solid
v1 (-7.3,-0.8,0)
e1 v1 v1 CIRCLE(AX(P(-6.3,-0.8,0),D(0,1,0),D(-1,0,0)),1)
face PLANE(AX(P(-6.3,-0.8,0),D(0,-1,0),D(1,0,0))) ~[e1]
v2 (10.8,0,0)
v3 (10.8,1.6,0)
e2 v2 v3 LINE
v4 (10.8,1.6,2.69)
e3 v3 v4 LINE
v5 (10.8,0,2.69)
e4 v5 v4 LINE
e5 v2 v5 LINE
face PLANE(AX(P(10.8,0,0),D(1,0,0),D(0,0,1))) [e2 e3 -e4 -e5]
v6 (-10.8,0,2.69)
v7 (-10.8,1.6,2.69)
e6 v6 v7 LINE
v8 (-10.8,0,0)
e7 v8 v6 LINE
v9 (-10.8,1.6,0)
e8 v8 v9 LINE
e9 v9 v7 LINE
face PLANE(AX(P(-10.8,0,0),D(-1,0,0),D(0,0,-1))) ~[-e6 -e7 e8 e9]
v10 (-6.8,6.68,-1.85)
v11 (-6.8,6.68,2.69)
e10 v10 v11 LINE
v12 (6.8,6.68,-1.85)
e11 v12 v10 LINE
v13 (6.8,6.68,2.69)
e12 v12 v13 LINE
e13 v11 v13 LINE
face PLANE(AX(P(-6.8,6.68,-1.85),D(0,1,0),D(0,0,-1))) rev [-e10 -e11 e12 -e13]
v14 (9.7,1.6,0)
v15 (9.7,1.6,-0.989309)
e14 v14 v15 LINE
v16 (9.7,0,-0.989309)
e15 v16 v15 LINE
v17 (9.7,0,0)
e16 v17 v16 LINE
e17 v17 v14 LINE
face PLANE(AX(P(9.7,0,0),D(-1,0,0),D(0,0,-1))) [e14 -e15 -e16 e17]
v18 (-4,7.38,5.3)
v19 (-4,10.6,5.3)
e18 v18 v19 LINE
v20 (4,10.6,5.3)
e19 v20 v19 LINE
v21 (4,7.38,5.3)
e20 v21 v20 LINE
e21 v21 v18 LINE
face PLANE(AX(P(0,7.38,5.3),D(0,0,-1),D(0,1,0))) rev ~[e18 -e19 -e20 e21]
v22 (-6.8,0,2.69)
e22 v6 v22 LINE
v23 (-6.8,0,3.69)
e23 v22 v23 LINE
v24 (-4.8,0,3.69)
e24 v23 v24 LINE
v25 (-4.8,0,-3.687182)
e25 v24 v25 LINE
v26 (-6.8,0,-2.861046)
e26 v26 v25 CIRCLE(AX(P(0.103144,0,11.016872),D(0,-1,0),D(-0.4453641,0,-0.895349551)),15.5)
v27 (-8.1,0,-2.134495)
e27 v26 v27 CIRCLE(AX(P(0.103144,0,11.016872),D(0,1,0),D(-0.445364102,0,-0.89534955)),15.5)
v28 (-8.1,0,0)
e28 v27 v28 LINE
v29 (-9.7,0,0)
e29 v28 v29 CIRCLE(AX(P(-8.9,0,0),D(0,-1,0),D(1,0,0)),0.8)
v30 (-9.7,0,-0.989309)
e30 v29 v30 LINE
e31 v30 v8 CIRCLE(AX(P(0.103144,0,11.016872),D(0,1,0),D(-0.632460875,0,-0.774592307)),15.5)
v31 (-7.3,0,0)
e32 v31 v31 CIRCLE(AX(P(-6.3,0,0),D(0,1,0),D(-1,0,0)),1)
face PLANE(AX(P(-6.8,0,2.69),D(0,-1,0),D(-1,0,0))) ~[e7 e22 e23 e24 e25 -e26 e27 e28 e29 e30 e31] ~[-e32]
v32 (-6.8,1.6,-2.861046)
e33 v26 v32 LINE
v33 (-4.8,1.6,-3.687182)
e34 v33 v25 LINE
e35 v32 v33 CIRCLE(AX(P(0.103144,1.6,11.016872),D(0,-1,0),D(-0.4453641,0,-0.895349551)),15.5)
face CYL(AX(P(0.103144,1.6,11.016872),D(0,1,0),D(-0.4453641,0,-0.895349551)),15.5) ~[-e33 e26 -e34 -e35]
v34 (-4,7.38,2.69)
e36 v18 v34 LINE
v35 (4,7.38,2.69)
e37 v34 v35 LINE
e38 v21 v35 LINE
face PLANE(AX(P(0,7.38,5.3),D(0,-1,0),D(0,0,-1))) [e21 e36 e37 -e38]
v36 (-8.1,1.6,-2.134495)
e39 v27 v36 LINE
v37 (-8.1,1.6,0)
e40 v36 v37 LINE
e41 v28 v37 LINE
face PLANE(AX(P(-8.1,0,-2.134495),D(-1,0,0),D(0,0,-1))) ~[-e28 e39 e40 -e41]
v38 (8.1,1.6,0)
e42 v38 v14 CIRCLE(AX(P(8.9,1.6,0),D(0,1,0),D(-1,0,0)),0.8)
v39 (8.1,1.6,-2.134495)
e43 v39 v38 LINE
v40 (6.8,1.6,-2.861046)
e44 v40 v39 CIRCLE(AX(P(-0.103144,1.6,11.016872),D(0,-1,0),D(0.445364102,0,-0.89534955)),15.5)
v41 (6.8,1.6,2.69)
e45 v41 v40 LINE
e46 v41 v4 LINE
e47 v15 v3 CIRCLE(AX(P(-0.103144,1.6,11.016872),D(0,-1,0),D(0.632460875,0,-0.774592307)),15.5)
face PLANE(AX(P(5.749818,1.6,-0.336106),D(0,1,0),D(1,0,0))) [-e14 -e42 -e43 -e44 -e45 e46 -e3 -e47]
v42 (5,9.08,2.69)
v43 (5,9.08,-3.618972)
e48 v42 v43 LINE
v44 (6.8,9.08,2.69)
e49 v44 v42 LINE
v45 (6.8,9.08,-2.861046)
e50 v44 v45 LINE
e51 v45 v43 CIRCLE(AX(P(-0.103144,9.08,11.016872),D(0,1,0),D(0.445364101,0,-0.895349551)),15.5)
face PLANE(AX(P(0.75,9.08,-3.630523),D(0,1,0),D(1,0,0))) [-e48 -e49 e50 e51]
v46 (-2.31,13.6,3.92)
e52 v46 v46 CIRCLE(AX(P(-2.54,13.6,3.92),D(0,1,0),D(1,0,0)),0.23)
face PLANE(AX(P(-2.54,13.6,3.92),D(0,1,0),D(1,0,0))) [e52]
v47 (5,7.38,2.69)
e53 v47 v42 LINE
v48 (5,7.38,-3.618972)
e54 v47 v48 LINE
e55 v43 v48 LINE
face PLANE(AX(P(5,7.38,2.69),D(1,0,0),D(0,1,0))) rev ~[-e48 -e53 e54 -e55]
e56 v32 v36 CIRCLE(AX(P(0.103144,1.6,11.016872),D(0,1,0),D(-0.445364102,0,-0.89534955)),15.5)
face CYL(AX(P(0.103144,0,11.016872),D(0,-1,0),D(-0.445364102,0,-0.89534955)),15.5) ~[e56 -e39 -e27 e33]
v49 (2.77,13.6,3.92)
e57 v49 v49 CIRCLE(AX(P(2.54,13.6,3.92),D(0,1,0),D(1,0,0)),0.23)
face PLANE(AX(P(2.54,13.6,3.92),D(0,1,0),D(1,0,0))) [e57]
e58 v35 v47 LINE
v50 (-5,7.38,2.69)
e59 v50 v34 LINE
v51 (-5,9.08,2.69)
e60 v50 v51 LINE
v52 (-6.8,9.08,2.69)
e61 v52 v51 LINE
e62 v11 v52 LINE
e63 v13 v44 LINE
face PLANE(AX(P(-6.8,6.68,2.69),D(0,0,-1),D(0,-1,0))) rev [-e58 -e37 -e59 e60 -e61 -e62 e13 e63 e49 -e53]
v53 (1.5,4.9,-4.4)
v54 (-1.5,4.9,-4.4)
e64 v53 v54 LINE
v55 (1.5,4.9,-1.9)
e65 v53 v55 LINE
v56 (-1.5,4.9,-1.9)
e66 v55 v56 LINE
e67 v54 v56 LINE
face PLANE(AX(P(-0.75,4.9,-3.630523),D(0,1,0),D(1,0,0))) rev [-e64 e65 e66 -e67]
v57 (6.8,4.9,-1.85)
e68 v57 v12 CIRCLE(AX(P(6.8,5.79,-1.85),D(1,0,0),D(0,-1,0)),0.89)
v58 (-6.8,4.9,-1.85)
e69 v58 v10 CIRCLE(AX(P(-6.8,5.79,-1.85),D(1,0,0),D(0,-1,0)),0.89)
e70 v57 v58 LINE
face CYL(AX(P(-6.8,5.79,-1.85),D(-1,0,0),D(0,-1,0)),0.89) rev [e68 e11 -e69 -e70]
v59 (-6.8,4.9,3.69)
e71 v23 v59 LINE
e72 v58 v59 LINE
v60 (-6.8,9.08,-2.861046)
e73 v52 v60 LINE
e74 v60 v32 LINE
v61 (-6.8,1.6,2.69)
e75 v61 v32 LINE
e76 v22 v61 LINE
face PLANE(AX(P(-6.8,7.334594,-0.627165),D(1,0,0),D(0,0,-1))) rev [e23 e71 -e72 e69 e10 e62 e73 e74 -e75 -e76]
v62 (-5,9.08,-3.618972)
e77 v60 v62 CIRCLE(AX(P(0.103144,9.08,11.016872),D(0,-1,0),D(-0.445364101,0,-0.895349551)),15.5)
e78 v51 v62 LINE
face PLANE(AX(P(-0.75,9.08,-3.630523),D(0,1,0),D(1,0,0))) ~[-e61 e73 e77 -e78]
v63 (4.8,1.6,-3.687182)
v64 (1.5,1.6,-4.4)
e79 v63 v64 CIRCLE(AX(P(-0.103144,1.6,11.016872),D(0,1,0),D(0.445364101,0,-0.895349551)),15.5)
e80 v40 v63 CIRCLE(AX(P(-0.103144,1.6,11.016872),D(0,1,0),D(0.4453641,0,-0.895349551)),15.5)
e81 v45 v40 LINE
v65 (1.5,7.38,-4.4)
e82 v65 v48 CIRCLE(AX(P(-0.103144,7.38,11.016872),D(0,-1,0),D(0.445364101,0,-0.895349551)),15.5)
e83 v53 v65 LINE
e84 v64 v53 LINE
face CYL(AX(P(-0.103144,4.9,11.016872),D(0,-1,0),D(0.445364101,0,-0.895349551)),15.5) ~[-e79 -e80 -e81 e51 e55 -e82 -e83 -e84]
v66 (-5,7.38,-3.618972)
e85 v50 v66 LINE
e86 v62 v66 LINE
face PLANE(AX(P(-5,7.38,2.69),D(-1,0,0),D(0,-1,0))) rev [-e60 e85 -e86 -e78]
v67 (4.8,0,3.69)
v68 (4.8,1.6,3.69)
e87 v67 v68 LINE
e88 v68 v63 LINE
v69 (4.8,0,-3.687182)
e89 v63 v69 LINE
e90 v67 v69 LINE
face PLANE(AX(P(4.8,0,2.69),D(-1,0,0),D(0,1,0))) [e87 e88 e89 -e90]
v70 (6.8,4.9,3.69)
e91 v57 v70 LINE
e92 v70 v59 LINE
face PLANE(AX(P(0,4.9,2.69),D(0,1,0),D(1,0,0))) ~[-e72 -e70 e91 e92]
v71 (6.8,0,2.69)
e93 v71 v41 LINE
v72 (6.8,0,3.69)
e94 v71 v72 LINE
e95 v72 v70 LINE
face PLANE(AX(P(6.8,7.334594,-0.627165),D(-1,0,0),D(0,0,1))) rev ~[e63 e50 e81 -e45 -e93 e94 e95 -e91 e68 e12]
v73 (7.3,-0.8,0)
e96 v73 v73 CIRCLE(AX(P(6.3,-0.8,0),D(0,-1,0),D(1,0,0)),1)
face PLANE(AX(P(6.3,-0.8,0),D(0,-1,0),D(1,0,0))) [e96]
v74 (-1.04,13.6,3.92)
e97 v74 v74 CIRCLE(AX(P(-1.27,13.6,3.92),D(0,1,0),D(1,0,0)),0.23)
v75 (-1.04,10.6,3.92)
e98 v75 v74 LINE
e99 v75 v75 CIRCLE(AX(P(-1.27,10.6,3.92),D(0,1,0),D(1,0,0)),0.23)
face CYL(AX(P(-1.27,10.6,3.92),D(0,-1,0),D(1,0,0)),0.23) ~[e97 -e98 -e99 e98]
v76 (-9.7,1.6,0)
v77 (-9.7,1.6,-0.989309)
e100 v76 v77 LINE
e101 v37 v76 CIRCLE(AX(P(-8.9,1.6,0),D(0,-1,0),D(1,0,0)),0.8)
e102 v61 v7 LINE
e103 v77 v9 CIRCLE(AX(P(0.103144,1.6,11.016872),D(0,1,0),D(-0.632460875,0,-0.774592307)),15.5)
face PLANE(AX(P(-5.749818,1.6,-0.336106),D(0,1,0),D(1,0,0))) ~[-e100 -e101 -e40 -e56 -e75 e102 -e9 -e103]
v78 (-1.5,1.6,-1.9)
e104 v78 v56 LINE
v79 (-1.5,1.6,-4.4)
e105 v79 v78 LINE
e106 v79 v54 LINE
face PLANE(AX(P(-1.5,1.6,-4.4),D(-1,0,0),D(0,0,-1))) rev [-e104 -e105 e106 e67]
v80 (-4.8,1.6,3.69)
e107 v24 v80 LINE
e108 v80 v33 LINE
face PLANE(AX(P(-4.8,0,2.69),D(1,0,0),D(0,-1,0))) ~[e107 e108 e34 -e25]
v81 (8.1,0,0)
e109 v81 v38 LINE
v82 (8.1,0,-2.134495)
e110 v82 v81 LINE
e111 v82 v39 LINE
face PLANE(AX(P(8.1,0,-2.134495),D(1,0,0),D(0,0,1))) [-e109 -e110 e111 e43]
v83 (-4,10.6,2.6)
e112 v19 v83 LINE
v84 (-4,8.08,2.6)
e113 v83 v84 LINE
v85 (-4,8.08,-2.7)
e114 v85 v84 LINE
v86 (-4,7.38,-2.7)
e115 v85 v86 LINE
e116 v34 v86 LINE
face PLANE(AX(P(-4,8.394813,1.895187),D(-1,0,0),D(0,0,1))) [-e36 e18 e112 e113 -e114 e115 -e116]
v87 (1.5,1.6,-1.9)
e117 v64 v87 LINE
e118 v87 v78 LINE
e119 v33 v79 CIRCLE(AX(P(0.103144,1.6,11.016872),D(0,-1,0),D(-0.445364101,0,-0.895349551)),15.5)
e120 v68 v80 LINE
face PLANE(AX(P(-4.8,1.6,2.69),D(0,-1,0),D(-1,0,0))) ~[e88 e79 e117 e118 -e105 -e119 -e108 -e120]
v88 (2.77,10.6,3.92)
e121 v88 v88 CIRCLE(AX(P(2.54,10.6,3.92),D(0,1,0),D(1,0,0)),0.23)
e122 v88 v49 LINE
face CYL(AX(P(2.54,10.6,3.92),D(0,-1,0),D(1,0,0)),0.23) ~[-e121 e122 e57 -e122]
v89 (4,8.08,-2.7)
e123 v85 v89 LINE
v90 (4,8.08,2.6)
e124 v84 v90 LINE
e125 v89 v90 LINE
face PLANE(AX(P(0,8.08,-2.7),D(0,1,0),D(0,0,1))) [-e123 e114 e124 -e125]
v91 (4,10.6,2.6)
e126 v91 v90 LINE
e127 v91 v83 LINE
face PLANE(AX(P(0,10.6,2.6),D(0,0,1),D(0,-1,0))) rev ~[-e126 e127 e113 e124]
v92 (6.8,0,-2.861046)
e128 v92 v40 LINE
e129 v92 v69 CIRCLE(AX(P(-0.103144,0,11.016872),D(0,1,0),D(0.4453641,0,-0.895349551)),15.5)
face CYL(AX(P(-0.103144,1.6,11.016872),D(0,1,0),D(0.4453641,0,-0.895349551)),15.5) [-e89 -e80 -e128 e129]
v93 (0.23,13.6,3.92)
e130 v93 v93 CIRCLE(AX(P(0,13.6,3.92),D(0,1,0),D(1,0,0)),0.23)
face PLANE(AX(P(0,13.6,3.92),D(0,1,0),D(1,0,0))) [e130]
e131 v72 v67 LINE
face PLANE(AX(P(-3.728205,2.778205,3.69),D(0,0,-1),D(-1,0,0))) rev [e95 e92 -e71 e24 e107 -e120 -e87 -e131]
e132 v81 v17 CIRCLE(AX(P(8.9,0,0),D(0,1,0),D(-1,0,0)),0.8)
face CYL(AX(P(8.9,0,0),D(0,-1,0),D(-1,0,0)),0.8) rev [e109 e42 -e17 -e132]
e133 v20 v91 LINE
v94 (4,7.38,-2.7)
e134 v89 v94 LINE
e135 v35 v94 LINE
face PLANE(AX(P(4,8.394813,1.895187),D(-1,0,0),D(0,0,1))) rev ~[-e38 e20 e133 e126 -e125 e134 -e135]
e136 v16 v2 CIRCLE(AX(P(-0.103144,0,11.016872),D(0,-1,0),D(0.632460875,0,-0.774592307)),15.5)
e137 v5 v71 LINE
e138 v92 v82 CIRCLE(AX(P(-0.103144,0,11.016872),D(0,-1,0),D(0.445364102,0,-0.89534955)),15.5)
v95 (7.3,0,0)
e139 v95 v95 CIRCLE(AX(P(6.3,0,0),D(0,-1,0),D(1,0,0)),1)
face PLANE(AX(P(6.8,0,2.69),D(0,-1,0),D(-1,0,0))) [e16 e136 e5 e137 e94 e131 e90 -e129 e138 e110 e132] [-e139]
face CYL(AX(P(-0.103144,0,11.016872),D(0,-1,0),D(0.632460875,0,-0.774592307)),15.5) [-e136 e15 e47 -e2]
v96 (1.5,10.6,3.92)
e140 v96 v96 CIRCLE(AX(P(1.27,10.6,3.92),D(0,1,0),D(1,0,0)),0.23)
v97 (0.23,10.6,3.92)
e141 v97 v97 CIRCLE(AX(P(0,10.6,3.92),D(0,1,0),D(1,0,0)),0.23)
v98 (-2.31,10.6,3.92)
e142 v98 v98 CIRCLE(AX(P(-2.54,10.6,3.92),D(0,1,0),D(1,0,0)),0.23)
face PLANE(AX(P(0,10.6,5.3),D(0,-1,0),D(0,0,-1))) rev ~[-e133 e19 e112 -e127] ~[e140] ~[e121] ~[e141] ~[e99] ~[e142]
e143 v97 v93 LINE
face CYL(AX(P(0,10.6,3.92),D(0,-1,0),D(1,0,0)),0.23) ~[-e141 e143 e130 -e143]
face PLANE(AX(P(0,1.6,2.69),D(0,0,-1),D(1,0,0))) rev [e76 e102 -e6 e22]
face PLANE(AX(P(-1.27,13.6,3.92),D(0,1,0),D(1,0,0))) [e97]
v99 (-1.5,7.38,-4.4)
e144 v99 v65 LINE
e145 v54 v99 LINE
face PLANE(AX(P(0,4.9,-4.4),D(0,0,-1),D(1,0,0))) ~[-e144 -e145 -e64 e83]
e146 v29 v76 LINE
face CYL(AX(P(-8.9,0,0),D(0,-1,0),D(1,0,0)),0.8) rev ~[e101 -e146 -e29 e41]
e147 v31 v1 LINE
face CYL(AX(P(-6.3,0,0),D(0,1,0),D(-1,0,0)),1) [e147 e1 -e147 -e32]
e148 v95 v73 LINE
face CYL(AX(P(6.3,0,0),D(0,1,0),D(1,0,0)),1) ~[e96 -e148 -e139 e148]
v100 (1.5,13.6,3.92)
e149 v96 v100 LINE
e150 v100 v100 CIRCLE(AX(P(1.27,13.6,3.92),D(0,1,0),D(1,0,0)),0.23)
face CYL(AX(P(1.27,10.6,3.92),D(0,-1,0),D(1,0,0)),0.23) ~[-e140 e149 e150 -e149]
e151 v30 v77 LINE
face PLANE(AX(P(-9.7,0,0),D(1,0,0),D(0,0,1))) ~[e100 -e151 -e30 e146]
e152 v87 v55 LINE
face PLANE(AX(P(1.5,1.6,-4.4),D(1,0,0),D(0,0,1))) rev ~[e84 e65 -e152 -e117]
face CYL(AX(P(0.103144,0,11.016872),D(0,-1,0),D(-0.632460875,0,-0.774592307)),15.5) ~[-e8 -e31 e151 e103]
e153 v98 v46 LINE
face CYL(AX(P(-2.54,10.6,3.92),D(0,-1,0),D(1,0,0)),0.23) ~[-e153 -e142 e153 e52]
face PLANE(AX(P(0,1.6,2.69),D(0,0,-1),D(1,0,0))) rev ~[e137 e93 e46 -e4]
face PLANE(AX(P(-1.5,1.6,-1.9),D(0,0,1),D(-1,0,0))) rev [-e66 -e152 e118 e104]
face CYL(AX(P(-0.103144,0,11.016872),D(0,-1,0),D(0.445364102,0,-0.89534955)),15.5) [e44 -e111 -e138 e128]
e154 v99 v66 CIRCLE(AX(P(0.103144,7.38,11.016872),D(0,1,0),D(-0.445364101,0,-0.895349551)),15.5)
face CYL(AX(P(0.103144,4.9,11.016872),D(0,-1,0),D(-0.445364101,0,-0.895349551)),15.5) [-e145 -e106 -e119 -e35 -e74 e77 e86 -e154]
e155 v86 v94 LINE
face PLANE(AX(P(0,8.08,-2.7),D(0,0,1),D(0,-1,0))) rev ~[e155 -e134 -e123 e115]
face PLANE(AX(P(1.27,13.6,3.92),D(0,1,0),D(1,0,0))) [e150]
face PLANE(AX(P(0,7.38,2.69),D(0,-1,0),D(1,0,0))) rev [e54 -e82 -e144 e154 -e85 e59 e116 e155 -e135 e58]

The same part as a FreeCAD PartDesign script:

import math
import FreeCAD as App
import Part
import Sketcher

doc = App.newDocument("Part")
params = doc.addObject("Spreadsheet::Sheet", "Params")
for row, (alias, value) in enumerate([
    ("sketch1_radius", "0.8 mm"),
    ("sketch1_radius2", "15.5 mm"),
    ("sketch1_width", "4 mm"),
    ("sketch1_height", "2.69 mm"),
    ("pad1_length", "1.6 mm"),
    ("sketch2_radius", "15.5 mm"),
    ("sketch2_width", "2 mm"),
    ("pad2_length", "1.6 mm"),
    ("sketch3_radius", "15.5 mm"),
    ("sketch3_width", "1.5 mm"),
    ("sketch3_width2", "6.8 mm"),
    ("sketch3_height", "2.5 mm"),
    ("sketch3_height2", "4.59 mm"),
    ("pad3_length", "3.3 mm"),
    ("sketch4_width", "2 mm"),
    ("sketch4_width2", "6.8 mm"),
    ("sketch4_height", "4.9 mm"),
    ("sketch4_height2", "3.3 mm"),
    ("pad4_length", "1 mm"),
    ("sketch5_radius", "0.89 mm"),
    ("sketch5_width", "2.4 mm"),
    ("sketch5_height", "4.54 mm"),
    ("pad5_length", "6.8 mm"),
    ("sketch6_radius", "15.5 mm"),
    ("sketch6_width", "6.8 mm"),
    ("sketch6_width2", "1.5 mm"),
    ("pad6_length", "4.18 mm"),
    ("sketch7_diameter", "2 mm"),
    ("pad7_length", "0.8 mm"),
    ("sketch8_width", "5 mm"),
    ("sketch8_height", "1.7 mm"),
    ("sketch9_height", "8 mm"),
    ("sketch9_width", "0.7 mm"),
    ("sketch9_height2", "5.3 mm"),
    ("sketch9_width2", "2.52 mm"),
    ("pad8_length", "8 mm"),
    ("sketch10_diameter", "0.46 mm"),
    ("pad9_length", "3 mm"),
], start=1):
    params.set(f"A{row}", alias)
    params.set(f"B{row}", "=" + value)
    params.setAlias(f"B{row}", alias)

body = doc.addObject("PartDesign::Body", "Body")

# Sketch on XZ plane
sketch1 = doc.addObject("Sketcher::SketchObject", "Sketch")
body.addObject(sketch1)
sketch1.AttachmentSupport = (doc.XZ_Plane, [""])
sketch1.MapMode = "FlatFace"
sketch1.addGeometry(Part.LineSegment(App.Vector(9.7, -1, 0), App.Vector(9.7, 0, 0)), False)
sketch1.addGeometry(Part.ArcOfCircle(Part.Circle(App.Vector(8.9, 0, 0), App.Vector(0, 0, 1), 0.8), math.radians(0), math.radians(180)), False)
sketch1.addGeometry(Part.LineSegment(App.Vector(8.1, 0, 0), App.Vector(8.1, -2.1, 0)), False)
sketch1.addGeometry(Part.ArcOfCircle(Part.Circle(App.Vector(-0.1, 11, 0), App.Vector(0, 0, 1), 15.5), math.radians(-63.55), math.radians(-58.05)), False)
sketch1.addGeometry(Part.LineSegment(App.Vector(6.8, -2.9, 0), App.Vector(6.8, 2.7, 0)), False)
sketch1.addGeometry(Part.LineSegment(App.Vector(6.8, 2.7, 0), App.Vector(10.8, 2.7, 0)), False)
sketch1.addGeometry(Part.LineSegment(App.Vector(10.8, 2.7, 0), App.Vector(10.8, 0, 0)), False)
sketch1.addGeometry(Part.ArcOfCircle(Part.Circle(App.Vector(-0.1, 11, 0), App.Vector(0, 0, 1), 15.5), math.radians(-50.77), math.radians(-45.3)), False)
sketch1.addConstraint(Sketcher.Constraint("Tangent", 0, 2, 1, 1))
sketch1.addConstraint(Sketcher.Constraint("Tangent", 1, 2, 2, 1))
sketch1.addConstraint(Sketcher.Constraint("Coincident", 2, 2, 3, 2))
sketch1.addConstraint(Sketcher.Constraint("Coincident", 3, 1, 4, 1))
sketch1.addConstraint(Sketcher.Constraint("Coincident", 4, 2, 5, 1))
sketch1.addConstraint(Sketcher.Constraint("Coincident", 5, 2, 6, 1))
sketch1.addConstraint(Sketcher.Constraint("Coincident", 6, 2, 7, 2))
sketch1.addConstraint(Sketcher.Constraint("Coincident", 7, 1, 0, 1))
sketch1.addConstraint(Sketcher.Constraint("Vertical", 0))
sketch1.addConstraint(Sketcher.Constraint("Vertical", 2))
sketch1.addConstraint(Sketcher.Constraint("Vertical", 4))
sketch1.addConstraint(Sketcher.Constraint("Horizontal", 5))
sketch1.addConstraint(Sketcher.Constraint("Vertical", 6))
sketch1.addConstraint(Sketcher.Constraint("Coincident", 7, 3, 3, 3))
sketch1.addConstraint(Sketcher.Constraint("Equal", 3, 7))
sketch1.addConstraint(Sketcher.Constraint("PointOnObject", 1, 3, -1))
sketch1.addConstraint(Sketcher.Constraint("PointOnObject", 6, 2, -1))
sketch1.addConstraint(Sketcher.Constraint("Radius", 1, 0.8))
sketch1.addConstraint(Sketcher.Constraint("Radius", 3, 15.5))
sketch1.addConstraint(Sketcher.Constraint("DistanceX", 5, 1, 5, 2, 4.0))
sketch1.addConstraint(Sketcher.Constraint("DistanceY", 6, 2, 6, 1, 2.69))
sketch1.addConstraint(Sketcher.Constraint("DistanceX", -1, 1, 1, 3, 8.9))
sketch1.addConstraint(Sketcher.Constraint("DistanceX", -1, 1, 3, 1, 6.8))
sketch1.addConstraint(Sketcher.Constraint("DistanceY", 0, 1, 0, 2, 0.989309))
sketch1.setExpression("Constraints[17]", "Params.sketch1_radius")
sketch1.setExpression("Constraints[18]", "Params.sketch1_radius2")
sketch1.setExpression("Constraints[19]", "Params.sketch1_width")
sketch1.setExpression("Constraints[20]", "Params.sketch1_height")
pad1 = doc.addObject("PartDesign::Pad", "Pad")
body.addObject(pad1)
pad1.Profile = sketch1
pad1.setExpression("Length", "Params.pad1_length")
pad1.Reversed = True

# Sketch on XZ plane
sketch2 = doc.addObject("Sketcher::SketchObject", "Sketch001")
body.addObject(sketch2)
sketch2.AttachmentSupport = (doc.XZ_Plane, [""])
sketch2.MapMode = "FlatFace"
sketch2.AttachmentOffset = App.Placement(App.Vector(0, 0, -1.6), App.Rotation())
sketch2.addGeometry(Part.LineSegment(App.Vector(6.8, 2.7, 0), App.Vector(6.8, -2.9, 0)), False)
sketch2.addGeometry(Part.ArcOfCircle(Part.Circle(App.Vector(-0.1, 11, 0), App.Vector(0, 0, 1), 15.5), math.radians(-71.56), math.radians(-63.55)), False)
sketch2.addGeometry(Part.LineSegment(App.Vector(4.8, -3.7, 0), App.Vector(4.8, 2.7, 0)), False)
sketch2.addGeometry(Part.LineSegment(App.Vector(4.8, 2.7, 0), App.Vector(6.8, 2.7, 0)), False)
sketch2.addConstraint(Sketcher.Constraint("Coincident", 0, 2, 1, 2))
sketch2.addConstraint(Sketcher.Constraint("Coincident", 1, 1, 2, 1))
sketch2.addConstraint(Sketcher.Constraint("Coincident", 2, 2, 3, 1))
sketch2.addConstraint(Sketcher.Constraint("Coincident", 3, 2, 0, 1))
sketch2.addConstraint(Sketcher.Constraint("Vertical", 0))
sketch2.addConstraint(Sketcher.Constraint("Vertical", 2))
sketch2.addConstraint(Sketcher.Constraint("Horizontal", 3))
sketch2.addConstraint(Sketcher.Constraint("Radius", 1, 15.5))
sketch2.addConstraint(Sketcher.Constraint("DistanceX", 3, 1, 3, 2, 2.0))
sketch2.addConstraint(Sketcher.Constraint("DistanceX", -1, 1, 0, 2, 6.8))
sketch2.addConstraint(Sketcher.Constraint("DistanceY", -1, 1, 2, 2, 2.69))
sketch2.addConstraint(Sketcher.Constraint("DistanceY", 2, 1, 2, 2, 6.377182))
sketch2.addConstraint(Sketcher.Constraint("DistanceY", 0, 2, 0, 1, 5.551046))
sketch2.setExpression("Constraints[7]", "Params.sketch2_radius")
sketch2.setExpression("Constraints[8]", "Params.sketch2_width")
pad2 = doc.addObject("PartDesign::Pad", "Pad001")
body.addObject(pad2)
pad2.Profile = sketch2
pad2.setExpression("Length", "Params.pad2_length")

# Sketch on XZ plane
sketch3 = doc.addObject("Sketcher::SketchObject", "Sketch002")
body.addObject(sketch3)
sketch3.AttachmentSupport = (doc.XZ_Plane, [""])
sketch3.MapMode = "FlatFace"
sketch3.AttachmentOffset = App.Placement(App.Vector(0, 0, -1.6), App.Rotation())
sketch3.addGeometry(Part.LineSegment(App.Vector(6.8, 2.7, 0), App.Vector(6.8, -2.9, 0)), False)
sketch3.addGeometry(Part.ArcOfCircle(Part.Circle(App.Vector(-0.1, 11, 0), App.Vector(0, 0, 1), 15.5), math.radians(-84), math.radians(-64)), False)
sketch3.addGeometry(Part.LineSegment(App.Vector(1.5, -4.4, 0), App.Vector(1.5, -1.9, 0)), False)
sketch3.addGeometry(Part.LineSegment(App.Vector(1.5, -1.9, 0), App.Vector(0, -1.9, 0)), False)
sketch3.addGeometry(Part.LineSegment(App.Vector(0, -1.9, 0), App.Vector(0, 2.7, 0)), False)
sketch3.addGeometry(Part.LineSegment(App.Vector(0, 2.7, 0), App.Vector(6.8, 2.7, 0)), False)
sketch3.addConstraint(Sketcher.Constraint("Coincident", 0, 2, 1, 2))
sketch3.addConstraint(Sketcher.Constraint("Coincident", 1, 1, 2, 1))
sketch3.addConstraint(Sketcher.Constraint("Coincident", 2, 2, 3, 1))
sketch3.addConstraint(Sketcher.Constraint("Coincident", 3, 2, 4, 1))
sketch3.addConstraint(Sketcher.Constraint("Coincident", 4, 2, 5, 1))
sketch3.addConstraint(Sketcher.Constraint("Coincident", 5, 2, 0, 1))
sketch3.addConstraint(Sketcher.Constraint("Vertical", 0))
sketch3.addConstraint(Sketcher.Constraint("Vertical", 2))
sketch3.addConstraint(Sketcher.Constraint("Horizontal", 3))
sketch3.addConstraint(Sketcher.Constraint("Vertical", 4))
sketch3.addConstraint(Sketcher.Constraint("Horizontal", 5))
sketch3.addConstraint(Sketcher.Constraint("PointOnObject", 3, 2, -2))
sketch3.addConstraint(Sketcher.Constraint("Radius", 1, 15.5))
sketch3.addConstraint(Sketcher.Constraint("DistanceX", 3, 2, 3, 1, 1.5))
sketch3.addConstraint(Sketcher.Constraint("DistanceX", 5, 1, 5, 2, 6.8))
sketch3.addConstraint(Sketcher.Constraint("DistanceY", 2, 1, 2, 2, 2.5))
sketch3.addConstraint(Sketcher.Constraint("DistanceY", 4, 1, 4, 2, 4.59))
sketch3.addConstraint(Sketcher.Constraint("DistanceY", 1, 1, -1, 1, 4.4))
sketch3.addConstraint(Sketcher.Constraint("DistanceY", 0, 2, 0, 1, 5.551046))
sketch3.setExpression("Constraints[12]", "Params.sketch3_radius")
sketch3.setExpression("Constraints[13]", "Params.sketch3_width")
sketch3.setExpression("Constraints[14]", "Params.sketch3_width2")
sketch3.setExpression("Constraints[15]", "Params.sketch3_height")
sketch3.setExpression("Constraints[16]", "Params.sketch3_height2")
pad3 = doc.addObject("PartDesign::Pad", "Pad002")
body.addObject(pad3)
pad3.Profile = sketch3
pad3.setExpression("Length", "Params.pad3_length")
pad3.Reversed = True

# Sketch on XY plane
sketch4 = doc.addObject("Sketcher::SketchObject", "Sketch003")
body.addObject(sketch4)
sketch4.AttachmentSupport = (doc.XY_Plane, [""])
sketch4.MapMode = "FlatFace"
sketch4.AttachmentOffset = App.Placement(App.Vector(0, 0, 2.69), App.Rotation())
sketch4.addGeometry(Part.LineSegment(App.Vector(6.8, 0, 0), App.Vector(6.8, 4.9, 0)), False)
sketch4.addGeometry(Part.LineSegment(App.Vector(6.8, 4.9, 0), App.Vector(0, 4.9, 0)), False)
sketch4.addGeometry(Part.LineSegment(App.Vector(0, 4.9, 0), App.Vector(0, 1.6, 0)), False)
sketch4.addGeometry(Part.LineSegment(App.Vector(0, 1.6, 0), App.Vector(4.8, 1.6, 0)), False)
sketch4.addGeometry(Part.LineSegment(App.Vector(4.8, 1.6, 0), App.Vector(4.8, 0, 0)), False)
sketch4.addGeometry(Part.LineSegment(App.Vector(4.8, 0, 0), App.Vector(6.8, 0, 0)), False)
sketch4.addConstraint(Sketcher.Constraint("Coincident", 0, 2, 1, 1))
sketch4.addConstraint(Sketcher.Constraint("Coincident", 1, 2, 2, 1))
sketch4.addConstraint(Sketcher.Constraint("Coincident", 2, 2, 3, 1))
sketch4.addConstraint(Sketcher.Constraint("Coincident", 3, 2, 4, 1))
sketch4.addConstraint(Sketcher.Constraint("Coincident", 4, 2, 5, 1))
sketch4.addConstraint(Sketcher.Constraint("Coincident", 5, 2, 0, 1))
sketch4.addConstraint(Sketcher.Constraint("Vertical", 0))
sketch4.addConstraint(Sketcher.Constraint("Horizontal", 1))
sketch4.addConstraint(Sketcher.Constraint("Vertical", 2))
sketch4.addConstraint(Sketcher.Constraint("Horizontal", 3))
sketch4.addConstraint(Sketcher.Constraint("Vertical", 4))
sketch4.addConstraint(Sketcher.Constraint("Horizontal", 5))
sketch4.addConstraint(Sketcher.Constraint("PointOnObject", 1, 2, -2))
sketch4.addConstraint(Sketcher.Constraint("PointOnObject", 4, 2, -1))
sketch4.addConstraint(Sketcher.Constraint("DistanceX", 5, 1, 5, 2, 2.0))
sketch4.addConstraint(Sketcher.Constraint("DistanceX", 1, 2, 1, 1, 6.8))
sketch4.addConstraint(Sketcher.Constraint("DistanceY", 0, 1, 0, 2, 4.9))
sketch4.addConstraint(Sketcher.Constraint("DistanceY", 2, 2, 2, 1, 3.3))
sketch4.setExpression("Constraints[14]", "Params.sketch4_width")
sketch4.setExpression("Constraints[15]", "Params.sketch4_width2")
sketch4.setExpression("Constraints[16]", "Params.sketch4_height")
sketch4.setExpression("Constraints[17]", "Params.sketch4_height2")
pad4 = doc.addObject("PartDesign::Pad", "Pad003")
body.addObject(pad4)
pad4.Profile = sketch4
pad4.setExpression("Length", "Params.pad4_length")

# Sketch on YZ plane
sketch5 = doc.addObject("Sketcher::SketchObject", "Sketch004")
body.addObject(sketch5)
sketch5.AttachmentSupport = (doc.YZ_Plane, [""])
sketch5.MapMode = "FlatFace"
sketch5.AttachmentOffset = App.Placement(App.Vector(0, 0, 6.8), App.Rotation())
sketch5.addGeometry(Part.LineSegment(App.Vector(9.1, -2.9, 0), App.Vector(9.1, 2.7, 0)), False)
sketch5.addGeometry(Part.LineSegment(App.Vector(9.1, 2.7, 0), App.Vector(6.7, 2.7, 0)), False)
sketch5.addGeometry(Part.LineSegment(App.Vector(6.7, 2.7, 0), App.Vector(6.7, -1.9, 0)), False)
sketch5.addGeometry(Part.ArcOfCircle(Part.Circle(App.Vector(5.8, -1.9, 0), App.Vector(0, 0, 1), 0.9), math.radians(180), math.radians(360)), False)
sketch5.addGeometry(Part.LineSegment(App.Vector(4.9, -1.9, 0), App.Vector(4.9, -2.9, 0)), False)
sketch5.addGeometry(Part.LineSegment(App.Vector(4.9, -2.9, 0), App.Vector(9.1, -2.9, 0)), False)
sketch5.addConstraint(Sketcher.Constraint("Coincident", 0, 2, 1, 1))
sketch5.addConstraint(Sketcher.Constraint("Coincident", 1, 2, 2, 1))
sketch5.addConstraint(Sketcher.Constraint("Tangent", 2, 2, 3, 2))
sketch5.addConstraint(Sketcher.Constraint("Tangent", 3, 1, 4, 1))
sketch5.addConstraint(Sketcher.Constraint("Coincident", 4, 2, 5, 1))
sketch5.addConstraint(Sketcher.Constraint("Coincident", 5, 2, 0, 1))
sketch5.addConstraint(Sketcher.Constraint("Vertical", 0))
sketch5.addConstraint(Sketcher.Constraint("Horizontal", 1))
sketch5.addConstraint(Sketcher.Constraint("Vertical", 2))
sketch5.addConstraint(Sketcher.Constraint("Vertical", 4))
sketch5.addConstraint(Sketcher.Constraint("Horizontal", 5))
sketch5.addConstraint(Sketcher.Constraint("Radius", 3, 0.89))
sketch5.addConstraint(Sketcher.Constraint("DistanceX", 1, 2, 1, 1, 2.4))
sketch5.addConstraint(Sketcher.Constraint("DistanceY", 2, 2, 2, 1, 4.54))
sketch5.addConstraint(Sketcher.Constraint("DistanceX", -1, 1, 3, 1, 4.9))
sketch5.addConstraint(Sketcher.Constraint("DistanceY", 3, 3, -1, 1, 1.85))
sketch5.addConstraint(Sketcher.Constraint("DistanceY", 0, 1, 0, 2, 5.551046))
sketch5.setExpression("Constraints[11]", "Params.sketch5_radius")
sketch5.setExpression("Constraints[12]", "Params.sketch5_width")
sketch5.setExpression("Constraints[13]", "Params.sketch5_height")
pad5 = doc.addObject("PartDesign::Pad", "Pad004")
body.addObject(pad5)
pad5.Profile = sketch5
pad5.setExpression("Length", "Params.pad5_length")
pad5.Reversed = True

# Sketch on XZ plane
sketch6 = doc.addObject("Sketcher::SketchObject", "Sketch005")
body.addObject(sketch6)
sketch6.AttachmentSupport = (doc.XZ_Plane, [""])
sketch6.MapMode = "FlatFace"
sketch6.AttachmentOffset = App.Placement(App.Vector(0, 0, -4.9), App.Rotation())
sketch6.addGeometry(Part.LineSegment(App.Vector(0, -4.4, 0), App.Vector(0, -2.9, 0)), False)
sketch6.addGeometry(Part.LineSegment(App.Vector(0, -2.9, 0), App.Vector(6.8, -2.9, 0)), False)
sketch6.addGeometry(Part.ArcOfCircle(Part.Circle(App.Vector(-0.1, 11, 0), App.Vector(0, 0, 1), 15.5), math.radians(-84), math.radians(-64)), False)
sketch6.addGeometry(Part.LineSegment(App.Vector(1.5, -4.4, 0), App.Vector(0, -4.4, 0)), False)
sketch6.addConstraint(Sketcher.Constraint("Coincident", 0, 2, 1, 1))
sketch6.addConstraint(Sketcher.Constraint("Coincident", 1, 2, 2, 2))
sketch6.addConstraint(Sketcher.Constraint("Coincident", 2, 1, 3, 1))
sketch6.addConstraint(Sketcher.Constraint("Coincident", 3, 2, 0, 1))
sketch6.addConstraint(Sketcher.Constraint("Vertical", 0))
sketch6.addConstraint(Sketcher.Constraint("Horizontal", 1))
sketch6.addConstraint(Sketcher.Constraint("Horizontal", 3))
sketch6.addConstraint(Sketcher.Constraint("PointOnObject", 0, 2, -2))
sketch6.addConstraint(Sketcher.Constraint("Radius", 2, 15.5))
sketch6.addConstraint(Sketcher.Constraint("DistanceX", 1, 1, 1, 2, 6.8))
sketch6.addConstraint(Sketcher.Constraint("DistanceX", 3, 2, 3, 1, 1.5))
sketch6.addConstraint(Sketcher.Constraint("DistanceY", 2, 1, -1, 1, 4.4))
sketch6.addConstraint(Sketcher.Constraint("DistanceY", 0, 1, 0, 2, 1.538954))
sketch6.setExpression("Constraints[8]", "Params.sketch6_radius")
sketch6.setExpression("Constraints[9]", "Params.sketch6_width")
sketch6.setExpression("Constraints[10]", "Params.sketch6_width2")
pad6 = doc.addObject("PartDesign::Pad", "Pad005")
body.addObject(pad6)
pad6.Profile = sketch6
pad6.setExpression("Length", "Params.pad6_length")
pad6.Reversed = True

# Sketch on XZ plane
sketch7 = doc.addObject("Sketcher::SketchObject", "Sketch006")
body.addObject(sketch7)
sketch7.AttachmentSupport = (doc.XZ_Plane, [""])
sketch7.MapMode = "FlatFace"
sketch7.addGeometry(Part.Circle(App.Vector(6.3, 0, 0), App.Vector(0, 0, 1), 1), False)
sketch7.addConstraint(Sketcher.Constraint("PointOnObject", 0, 3, -1))
sketch7.addConstraint(Sketcher.Constraint("Diameter", 0, 2.0))
sketch7.addConstraint(Sketcher.Constraint("DistanceX", -1, 1, 0, 3, 6.3))
sketch7.setExpression("Constraints[1]", "Params.sketch7_diameter")
pad7 = doc.addObject("PartDesign::Pad", "Pad006")
body.addObject(pad7)
pad7.Profile = sketch7
pad7.setExpression("Length", "Params.pad7_length")

# Sketch on XY plane
sketch8 = doc.addObject("Sketcher::SketchObject", "Sketch007")
body.addObject(sketch8)
sketch8.AttachmentSupport = (doc.XY_Plane, [""])
sketch8.MapMode = "FlatFace"
sketch8.AttachmentOffset = App.Placement(App.Vector(0, 0, 2.69), App.Rotation())
sketch8.addGeometry(Part.LineSegment(App.Vector(0, 9.1, 0), App.Vector(0, 7.4, 0)), False)
sketch8.addGeometry(Part.LineSegment(App.Vector(0, 7.4, 0), App.Vector(5, 7.4, 0)), False)
sketch8.addGeometry(Part.LineSegment(App.Vector(5, 7.4, 0), App.Vector(5, 9.1, 0)), False)
sketch8.addGeometry(Part.LineSegment(App.Vector(5, 9.1, 0), App.Vector(0, 9.1, 0)), False)
sketch8.addConstraint(Sketcher.Constraint("Coincident", 0, 2, 1, 1))
sketch8.addConstraint(Sketcher.Constraint("Coincident", 1, 2, 2, 1))
sketch8.addConstraint(Sketcher.Constraint("Coincident", 2, 2, 3, 1))
sketch8.addConstraint(Sketcher.Constraint("Coincident", 3, 2, 0, 1))
sketch8.addConstraint(Sketcher.Constraint("Vertical", 0))
sketch8.addConstraint(Sketcher.Constraint("Horizontal", 1))
sketch8.addConstraint(Sketcher.Constraint("Vertical", 2))
sketch8.addConstraint(Sketcher.Constraint("Horizontal", 3))
sketch8.addConstraint(Sketcher.Constraint("PointOnObject", 0, 2, -2))
sketch8.addConstraint(Sketcher.Constraint("DistanceX", 1, 1, 1, 2, 5.0))
sketch8.addConstraint(Sketcher.Constraint("DistanceY", 0, 2, 0, 1, 1.7))
sketch8.addConstraint(Sketcher.Constraint("DistanceY", -1, 1, 0, 2, 7.38))
sketch8.setExpression("Constraints[9]", "Params.sketch8_width")
sketch8.setExpression("Constraints[10]", "Params.sketch8_height")
pocket1 = doc.addObject("PartDesign::Pocket", "Pocket")
body.addObject(pocket1)
pocket1.Profile = sketch8
pocket1.Type = "ThroughAll"
body2 = doc.addObject("PartDesign::Body", "Body001")
doc.recompute()

body2.BaseFeature = body
doc.recompute()

mirroring = doc.addObject("Part::Mirroring", "Mirroring")
mirroring.Source = body
mirroring.Base = App.Vector(0, 4.9, -1.9)
mirroring.Normal = App.Vector(1, 0, 0)
body3 = doc.addObject("PartDesign::Body", "Body002")
body3.BaseFeature = mirroring
boolean = doc.addObject("PartDesign::Boolean", "Boolean")
body2.addObject(boolean)
boolean.Type = "Fuse"
boolean.addObjects([body3])
doc.recompute()

# Sketch on YZ plane
sketch9 = doc.addObject("Sketcher::SketchObject", "Sketch008")
body2.addObject(sketch9)
sketch9.AttachmentSupport = (doc.getObject("YZ_Plane001"), [""])
sketch9.MapMode = "FlatFace"
sketch9.addGeometry(Part.LineSegment(App.Vector(7.4, 5.3, 0), App.Vector(7.4, -2.7, 0)), False)
sketch9.addGeometry(Part.LineSegment(App.Vector(7.4, -2.7, 0), App.Vector(8.1, -2.7, 0)), False)
sketch9.addGeometry(Part.LineSegment(App.Vector(8.1, -2.7, 0), App.Vector(8.1, 2.6, 0)), False)
sketch9.addGeometry(Part.LineSegment(App.Vector(8.1, 2.6, 0), App.Vector(10.6, 2.6, 0)), False)
sketch9.addGeometry(Part.LineSegment(App.Vector(10.6, 2.6, 0), App.Vector(10.6, 5.3, 0)), False)
sketch9.addGeometry(Part.LineSegment(App.Vector(10.6, 5.3, 0), App.Vector(7.4, 5.3, 0)), False)
sketch9.addConstraint(Sketcher.Constraint("Coincident", 0, 2, 1, 1))
sketch9.addConstraint(Sketcher.Constraint("Coincident", 1, 2, 2, 1))
sketch9.addConstraint(Sketcher.Constraint("Coincident", 2, 2, 3, 1))
sketch9.addConstraint(Sketcher.Constraint("Coincident", 3, 2, 4, 1))
sketch9.addConstraint(Sketcher.Constraint("Coincident", 4, 2, 5, 1))
sketch9.addConstraint(Sketcher.Constraint("Coincident", 5, 2, 0, 1))
sketch9.addConstraint(Sketcher.Constraint("Vertical", 0))
sketch9.addConstraint(Sketcher.Constraint("Horizontal", 1))
sketch9.addConstraint(Sketcher.Constraint("Vertical", 2))
sketch9.addConstraint(Sketcher.Constraint("Horizontal", 3))
sketch9.addConstraint(Sketcher.Constraint("Vertical", 4))
sketch9.addConstraint(Sketcher.Constraint("Horizontal", 5))
sketch9.addConstraint(Sketcher.Constraint("DistanceY", 0, 2, 0, 1, 8.0))
sketch9.addConstraint(Sketcher.Constraint("DistanceX", 1, 1, 1, 2, 0.7))
sketch9.addConstraint(Sketcher.Constraint("DistanceY", 2, 1, 2, 2, 5.3))
sketch9.addConstraint(Sketcher.Constraint("DistanceX", 3, 1, 3, 2, 2.52))
sketch9.addConstraint(Sketcher.Constraint("DistanceY", 0, 2, -1, 1, 2.7))
sketch9.addConstraint(Sketcher.Constraint("DistanceX", -1, 1, 3, 2, 10.6))
sketch9.setExpression("Constraints[12]", "Params.sketch9_height")
sketch9.setExpression("Constraints[13]", "Params.sketch9_width")
sketch9.setExpression("Constraints[14]", "Params.sketch9_height2")
sketch9.setExpression("Constraints[15]", "Params.sketch9_width2")
pad8 = doc.addObject("PartDesign::Pad", "Pad007")
body2.addObject(pad8)
pad8.Profile = sketch9
pad8.setExpression("Length", "Params.pad8_length")
pad8.Midplane = True

# Sketch on XZ plane
sketch10 = doc.addObject("Sketcher::SketchObject", "Sketch009")
body2.addObject(sketch10)
sketch10.AttachmentSupport = (doc.getObject("XZ_Plane001"), [""])
sketch10.MapMode = "FlatFace"
sketch10.AttachmentOffset = App.Placement(App.Vector(0, 0, -10.6), App.Rotation())
sketch10.addGeometry(Part.Circle(App.Vector(0, 3.92, 0), App.Vector(0, 0, 1), 0.23), False)
sketch10.addGeometry(Part.Circle(App.Vector(1.27, 3.92, 0), App.Vector(0, 0, 1), 0.23), False)
sketch10.addGeometry(Part.Circle(App.Vector(2.54, 3.92, 0), App.Vector(0, 0, 1), 0.23), False)
sketch10.addGeometry(Part.Circle(App.Vector(-1.27, 3.92, 0), App.Vector(0, 0, 1), 0.23), False)
sketch10.addGeometry(Part.Circle(App.Vector(-2.54, 3.92, 0), App.Vector(0, 0, 1), 0.23), False)
sketch10.addConstraint(Sketcher.Constraint("Equal", 0, 1))
sketch10.addConstraint(Sketcher.Constraint("Equal", 1, 2))
sketch10.addConstraint(Sketcher.Constraint("Equal", 2, 3))
sketch10.addConstraint(Sketcher.Constraint("Equal", 3, 4))
sketch10.addConstraint(Sketcher.Constraint("Symmetric", 1, 3, 3, 3, -2))
sketch10.addConstraint(Sketcher.Constraint("Symmetric", 2, 3, 4, 3, -2))
sketch10.addConstraint(Sketcher.Constraint("PointOnObject", 0, 3, -2))
sketch10.addConstraint(Sketcher.Constraint("Horizontal", 0, 3, 1, 3))
sketch10.addConstraint(Sketcher.Constraint("Horizontal", 1, 3, 2, 3))
sketch10.addConstraint(Sketcher.Constraint("Diameter", 0, 0.46))
sketch10.addConstraint(Sketcher.Constraint("DistanceY", -1, 1, 0, 3, 3.92))
sketch10.addConstraint(Sketcher.Constraint("DistanceX", -1, 1, 1, 3, 1.27))
sketch10.addConstraint(Sketcher.Constraint("DistanceX", -1, 1, 2, 3, 2.54))
sketch10.setExpression("Constraints[9]", "Params.sketch10_diameter")
pad9 = doc.addObject("PartDesign::Pad", "Pad008")
body2.addObject(pad9)
pad9.Profile = sketch10
pad9.setExpression("Length", "Params.pad9_length")
pad9.Reversed = True
mirroring.Visibility = False

doc.recompute()
